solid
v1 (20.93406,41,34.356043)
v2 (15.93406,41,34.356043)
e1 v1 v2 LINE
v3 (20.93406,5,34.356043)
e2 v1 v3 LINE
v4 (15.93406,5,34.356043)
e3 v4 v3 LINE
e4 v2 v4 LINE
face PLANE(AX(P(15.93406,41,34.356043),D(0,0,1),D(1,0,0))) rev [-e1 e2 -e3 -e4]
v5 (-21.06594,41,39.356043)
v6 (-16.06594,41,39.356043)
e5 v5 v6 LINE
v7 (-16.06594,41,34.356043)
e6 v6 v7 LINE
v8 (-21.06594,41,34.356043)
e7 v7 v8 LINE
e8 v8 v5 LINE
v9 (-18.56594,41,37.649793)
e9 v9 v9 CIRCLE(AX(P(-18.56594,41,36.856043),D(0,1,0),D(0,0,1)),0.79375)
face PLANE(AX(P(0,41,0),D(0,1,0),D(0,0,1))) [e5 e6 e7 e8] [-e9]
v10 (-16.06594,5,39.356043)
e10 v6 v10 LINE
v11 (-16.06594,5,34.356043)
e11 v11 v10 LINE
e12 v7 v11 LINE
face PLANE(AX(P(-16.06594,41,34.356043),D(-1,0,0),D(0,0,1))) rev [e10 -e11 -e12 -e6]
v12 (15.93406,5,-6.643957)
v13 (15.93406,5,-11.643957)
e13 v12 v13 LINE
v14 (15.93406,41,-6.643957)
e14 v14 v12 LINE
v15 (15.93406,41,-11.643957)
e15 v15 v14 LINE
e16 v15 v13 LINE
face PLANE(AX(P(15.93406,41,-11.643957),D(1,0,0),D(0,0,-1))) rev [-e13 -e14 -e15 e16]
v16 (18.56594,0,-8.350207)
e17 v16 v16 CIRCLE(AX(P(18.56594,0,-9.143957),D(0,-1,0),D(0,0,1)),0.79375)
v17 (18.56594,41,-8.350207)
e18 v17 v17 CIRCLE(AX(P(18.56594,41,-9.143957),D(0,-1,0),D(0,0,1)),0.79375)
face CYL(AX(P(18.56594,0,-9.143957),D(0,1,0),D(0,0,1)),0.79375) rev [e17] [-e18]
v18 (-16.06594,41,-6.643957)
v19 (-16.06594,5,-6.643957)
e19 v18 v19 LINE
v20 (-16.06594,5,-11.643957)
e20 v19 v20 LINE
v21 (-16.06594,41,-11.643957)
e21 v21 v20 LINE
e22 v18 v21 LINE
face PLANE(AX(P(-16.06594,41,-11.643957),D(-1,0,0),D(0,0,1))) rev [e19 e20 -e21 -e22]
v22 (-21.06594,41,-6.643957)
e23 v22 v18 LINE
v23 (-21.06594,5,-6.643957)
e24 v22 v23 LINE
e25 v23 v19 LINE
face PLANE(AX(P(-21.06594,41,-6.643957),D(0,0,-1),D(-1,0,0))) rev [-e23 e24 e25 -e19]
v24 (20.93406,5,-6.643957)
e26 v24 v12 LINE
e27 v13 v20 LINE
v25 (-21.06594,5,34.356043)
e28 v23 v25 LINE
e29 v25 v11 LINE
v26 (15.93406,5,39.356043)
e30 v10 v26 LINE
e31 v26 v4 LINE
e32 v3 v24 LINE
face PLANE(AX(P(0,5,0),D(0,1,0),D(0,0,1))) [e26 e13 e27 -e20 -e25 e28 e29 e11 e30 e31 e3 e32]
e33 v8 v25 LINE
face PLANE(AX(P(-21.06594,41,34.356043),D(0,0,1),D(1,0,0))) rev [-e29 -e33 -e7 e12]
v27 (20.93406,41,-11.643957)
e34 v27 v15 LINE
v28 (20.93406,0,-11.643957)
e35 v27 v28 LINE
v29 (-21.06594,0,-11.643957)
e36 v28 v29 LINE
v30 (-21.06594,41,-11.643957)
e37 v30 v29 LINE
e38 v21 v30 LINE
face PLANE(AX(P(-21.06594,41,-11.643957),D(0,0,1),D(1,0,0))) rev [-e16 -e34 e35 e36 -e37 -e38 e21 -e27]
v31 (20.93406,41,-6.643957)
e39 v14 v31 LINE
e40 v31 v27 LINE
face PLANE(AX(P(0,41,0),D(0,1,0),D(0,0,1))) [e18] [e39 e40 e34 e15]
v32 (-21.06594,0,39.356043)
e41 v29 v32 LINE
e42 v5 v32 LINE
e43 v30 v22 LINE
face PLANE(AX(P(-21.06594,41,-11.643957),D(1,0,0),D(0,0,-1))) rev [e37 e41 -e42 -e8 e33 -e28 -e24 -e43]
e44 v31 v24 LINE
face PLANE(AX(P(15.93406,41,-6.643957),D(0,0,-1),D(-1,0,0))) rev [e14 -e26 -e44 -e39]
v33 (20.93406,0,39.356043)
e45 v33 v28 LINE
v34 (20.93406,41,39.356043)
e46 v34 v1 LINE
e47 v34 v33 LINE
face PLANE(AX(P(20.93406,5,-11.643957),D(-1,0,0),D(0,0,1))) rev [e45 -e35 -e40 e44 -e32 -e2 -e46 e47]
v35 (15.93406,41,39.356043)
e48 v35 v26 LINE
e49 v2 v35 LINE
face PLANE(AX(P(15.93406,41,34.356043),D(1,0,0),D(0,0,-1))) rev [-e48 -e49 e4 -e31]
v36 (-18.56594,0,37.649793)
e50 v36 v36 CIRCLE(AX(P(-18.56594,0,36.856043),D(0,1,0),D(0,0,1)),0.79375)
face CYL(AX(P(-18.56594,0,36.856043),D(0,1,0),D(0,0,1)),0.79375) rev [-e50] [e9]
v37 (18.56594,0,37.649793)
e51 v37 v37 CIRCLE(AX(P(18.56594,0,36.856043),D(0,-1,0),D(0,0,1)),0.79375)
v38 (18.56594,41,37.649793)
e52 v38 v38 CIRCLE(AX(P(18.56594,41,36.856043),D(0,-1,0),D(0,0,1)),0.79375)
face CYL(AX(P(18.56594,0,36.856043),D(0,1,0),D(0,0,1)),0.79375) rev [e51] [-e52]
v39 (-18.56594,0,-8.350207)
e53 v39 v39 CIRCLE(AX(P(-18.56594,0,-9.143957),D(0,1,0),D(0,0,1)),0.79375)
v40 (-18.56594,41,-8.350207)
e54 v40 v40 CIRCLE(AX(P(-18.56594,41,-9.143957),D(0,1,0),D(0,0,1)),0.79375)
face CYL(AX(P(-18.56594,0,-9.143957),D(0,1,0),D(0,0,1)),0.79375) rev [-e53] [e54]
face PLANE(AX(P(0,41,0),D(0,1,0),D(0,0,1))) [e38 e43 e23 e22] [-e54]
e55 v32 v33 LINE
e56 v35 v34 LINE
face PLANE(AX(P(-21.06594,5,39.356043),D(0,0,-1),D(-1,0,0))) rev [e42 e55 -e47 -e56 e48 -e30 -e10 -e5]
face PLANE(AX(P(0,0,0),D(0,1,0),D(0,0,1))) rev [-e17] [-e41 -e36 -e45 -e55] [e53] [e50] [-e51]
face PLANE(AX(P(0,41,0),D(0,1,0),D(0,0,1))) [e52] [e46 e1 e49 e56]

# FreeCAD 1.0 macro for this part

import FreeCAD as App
import Part
import Sketcher
Q = App.Units.Quantity

doc = App.newDocument("Part")
body = doc.addObject("PartDesign::Body", "Body")

# Sketch on XZ plane
sketch1 = doc.addObject("Sketcher::SketchObject", "Sketch")
body.addObject(sketch1)
sketch1.AttachmentSupport = (doc.XZ_Plane, [""])
sketch1.MapMode = "FlatFace"
sketch1.addGeometry(Part.LineSegment(App.Vector(-21, -12, 0), App.Vector(-21, -7, 0)), False)
sketch1.addGeometry(Part.LineSegment(App.Vector(-21, -7, 0), App.Vector(-16, -7, 0)), False)
sketch1.addGeometry(Part.LineSegment(App.Vector(-16, -7, 0), App.Vector(-16, -12, 0)), False)
sketch1.addGeometry(Part.LineSegment(App.Vector(-16, -12, 0), App.Vector(-21, -12, 0)), False)
sketch1.addConstraint(Sketcher.Constraint("Coincident", 0, 2, 1, 1))
sketch1.addConstraint(Sketcher.Constraint("Coincident", 1, 2, 2, 1))
sketch1.addConstraint(Sketcher.Constraint("Coincident", 2, 2, 3, 1))
sketch1.addConstraint(Sketcher.Constraint("Coincident", 3, 2, 0, 1))
sketch1.addConstraint(Sketcher.Constraint("Vertical", 0))
sketch1.addConstraint(Sketcher.Constraint("Horizontal", 1))
sketch1.addConstraint(Sketcher.Constraint("Vertical", 2))
sketch1.addConstraint(Sketcher.Constraint("Horizontal", 3))
sketch1.addConstraint(Sketcher.Constraint("Equal", 3, 0))
sketch1.addConstraint(Sketcher.Constraint("DistanceX", 1, 1, 1, 2, Q("5 mm")))
sketch1.addConstraint(Sketcher.Constraint("DistanceX", 0, 2, -1, 1, Q("21.06594 mm")))
sketch1.addConstraint(Sketcher.Constraint("DistanceY", 0, 2, -1, 1, Q("6.643957 mm")))
pad1 = doc.addObject("PartDesign::Pad", "Pad")
body.addObject(pad1)
pad1.Profile = sketch1
pad1.Length = 41
pad1.Reversed = True
body2 = doc.addObject("PartDesign::Body", "Body001")

# Sketch on XZ plane
sketch2 = doc.addObject("Sketcher::SketchObject", "Sketch001")
body2.addObject(sketch2)
sketch2.AttachmentSupport = (doc.getObject("XZ_Plane001"), [""])
sketch2.MapMode = "FlatFace"
sketch2.addGeometry(Part.LineSegment(App.Vector(16, -12, 0), App.Vector(16, -7, 0)), False)
sketch2.addGeometry(Part.LineSegment(App.Vector(16, -7, 0), App.Vector(21, -7, 0)), False)
sketch2.addGeometry(Part.LineSegment(App.Vector(21, -7, 0), App.Vector(21, -12, 0)), False)
sketch2.addGeometry(Part.LineSegment(App.Vector(21, -12, 0), App.Vector(16, -12, 0)), False)
sketch2.addConstraint(Sketcher.Constraint("Coincident", 0, 2, 1, 1))
sketch2.addConstraint(Sketcher.Constraint("Coincident", 1, 2, 2, 1))
sketch2.addConstraint(Sketcher.Constraint("Coincident", 2, 2, 3, 1))
sketch2.addConstraint(Sketcher.Constraint("Coincident", 3, 2, 0, 1))
sketch2.addConstraint(Sketcher.Constraint("Vertical", 0))
sketch2.addConstraint(Sketcher.Constraint("Horizontal", 1))
sketch2.addConstraint(Sketcher.Constraint("Vertical", 2))
sketch2.addConstraint(Sketcher.Constraint("Horizontal", 3))
sketch2.addConstraint(Sketcher.Constraint("Equal", 3, 0))
sketch2.addConstraint(Sketcher.Constraint("DistanceX", 1, 1, 1, 2, Q("5 mm")))
sketch2.addConstraint(Sketcher.Constraint("DistanceX", -1, 1, 0, 2, Q("15.93406 mm")))
sketch2.addConstraint(Sketcher.Constraint("DistanceY", 0, 2, -1, 1, Q("6.643957 mm")))
pad2 = doc.addObject("PartDesign::Pad", "Pad001")
body2.addObject(pad2)
pad2.Profile = sketch2
pad2.Length = 41
pad2.Reversed = True
body3 = doc.addObject("PartDesign::Body", "Body002")

# Sketch on XZ plane
sketch3 = doc.addObject("Sketcher::SketchObject", "Sketch002")
body3.addObject(sketch3)
sketch3.AttachmentSupport = (doc.getObject("XZ_Plane002"), [""])
sketch3.MapMode = "FlatFace"
sketch3.addGeometry(Part.LineSegment(App.Vector(-21, 34, 0), App.Vector(-21, 39, 0)), False)
sketch3.addGeometry(Part.LineSegment(App.Vector(-21, 39, 0), App.Vector(-16, 39, 0)), False)
sketch3.addGeometry(Part.LineSegment(App.Vector(-16, 39, 0), App.Vector(-16, 34, 0)), False)
sketch3.addGeometry(Part.LineSegment(App.Vector(-16, 34, 0), App.Vector(-21, 34, 0)), False)
sketch3.addConstraint(Sketcher.Constraint("Coincident", 0, 2, 1, 1))
sketch3.addConstraint(Sketcher.Constraint("Coincident", 1, 2, 2, 1))
sketch3.addConstraint(Sketcher.Constraint("Coincident", 2, 2, 3, 1))
sketch3.addConstraint(Sketcher.Constraint("Coincident", 3, 2, 0, 1))
sketch3.addConstraint(Sketcher.Constraint("Vertical", 0))
sketch3.addConstraint(Sketcher.Constraint("Horizontal", 1))
sketch3.addConstraint(Sketcher.Constraint("Vertical", 2))
sketch3.addConstraint(Sketcher.Constraint("Horizontal", 3))
sketch3.addConstraint(Sketcher.Constraint("Equal", 3, 0))
sketch3.addConstraint(Sketcher.Constraint("DistanceX", 1, 1, 1, 2, Q("5 mm")))
sketch3.addConstraint(Sketcher.Constraint("DistanceX", 0, 2, -1, 1, Q("21.06594 mm")))
sketch3.addConstraint(Sketcher.Constraint("DistanceY", -1, 1, 0, 2, Q("39.356043 mm")))
pad3 = doc.addObject("PartDesign::Pad", "Pad002")
body3.addObject(pad3)
pad3.Profile = sketch3
pad3.Length = 41
pad3.Reversed = True
body4 = doc.addObject("PartDesign::Body", "Body003")

# Sketch on XZ plane
sketch4 = doc.addObject("Sketcher::SketchObject", "Sketch003")
body4.addObject(sketch4)
sketch4.AttachmentSupport = (doc.getObject("XZ_Plane003"), [""])
sketch4.MapMode = "FlatFace"
sketch4.addGeometry(Part.LineSegment(App.Vector(16, 34, 0), App.Vector(16, 39, 0)), False)
sketch4.addGeometry(Part.LineSegment(App.Vector(16, 39, 0), App.Vector(21, 39, 0)), False)
sketch4.addGeometry(Part.LineSegment(App.Vector(21, 39, 0), App.Vector(21, 34, 0)), False)
sketch4.addGeometry(Part.LineSegment(App.Vector(21, 34, 0), App.Vector(16, 34, 0)), False)
sketch4.addConstraint(Sketcher.Constraint("Coincident", 0, 2, 1, 1))
sketch4.addConstraint(Sketcher.Constraint("Coincident", 1, 2, 2, 1))
sketch4.addConstraint(Sketcher.Constraint("Coincident", 2, 2, 3, 1))
sketch4.addConstraint(Sketcher.Constraint("Coincident", 3, 2, 0, 1))
sketch4.addConstraint(Sketcher.Constraint("Vertical", 0))
sketch4.addConstraint(Sketcher.Constraint("Horizontal", 1))
sketch4.addConstraint(Sketcher.Constraint("Vertical", 2))
sketch4.addConstraint(Sketcher.Constraint("Horizontal", 3))
sketch4.addConstraint(Sketcher.Constraint("Equal", 3, 0))
sketch4.addConstraint(Sketcher.Constraint("DistanceX", 1, 1, 1, 2, Q("5 mm")))
sketch4.addConstraint(Sketcher.Constraint("DistanceX", -1, 1, 0, 2, Q("15.93406 mm")))
sketch4.addConstraint(Sketcher.Constraint("DistanceY", -1, 1, 0, 2, Q("39.356043 mm")))
pad4 = doc.addObject("PartDesign::Pad", "Pad003")
body4.addObject(pad4)
pad4.Profile = sketch4
pad4.Length = 41
pad4.Reversed = True
body.AllowCompound = True
doc.recompute()

boolean = doc.addObject("PartDesign::Boolean", "Boolean")
body.addObject(boolean)
boolean.Type = "Fuse"
boolean.addObjects([body2])
doc.recompute()

boolean2 = doc.addObject("PartDesign::Boolean", "Boolean001")
body.addObject(boolean2)
boolean2.Type = "Fuse"
boolean2.addObjects([body3])
doc.recompute()

boolean3 = doc.addObject("PartDesign::Boolean", "Boolean002")
body.addObject(boolean3)
boolean3.Type = "Fuse"
boolean3.addObjects([body4])

# Sketch on XZ plane
sketch5 = doc.addObject("Sketcher::SketchObject", "Sketch004")
body.addObject(sketch5)
sketch5.AttachmentSupport = (doc.XZ_Plane, [""])
sketch5.MapMode = "FlatFace"
sketch5.addGeometry(Part.LineSegment(App.Vector(-21, -12, 0), App.Vector(-21, 39, 0)), False)
sketch5.addGeometry(Part.LineSegment(App.Vector(-21, 39, 0), App.Vector(21, 39, 0)), False)
sketch5.addGeometry(Part.LineSegment(App.Vector(21, 39, 0), App.Vector(21, -12, 0)), False)
sketch5.addGeometry(Part.LineSegment(App.Vector(21, -12, 0), App.Vector(-21, -12, 0)), False)
sketch5.addConstraint(Sketcher.Constraint("Coincident", 0, 2, 1, 1))
sketch5.addConstraint(Sketcher.Constraint("Coincident", 1, 2, 2, 1))
sketch5.addConstraint(Sketcher.Constraint("Coincident", 2, 2, 3, 1))
sketch5.addConstraint(Sketcher.Constraint("Coincident", 3, 2, 0, 1))
sketch5.addConstraint(Sketcher.Constraint("Vertical", 0))
sketch5.addConstraint(Sketcher.Constraint("Horizontal", 1))
sketch5.addConstraint(Sketcher.Constraint("Vertical", 2))
sketch5.addConstraint(Sketcher.Constraint("Horizontal", 3))
sketch5.addConstraint(Sketcher.Constraint("DistanceX", 1, 1, 1, 2, Q("42 mm")))
sketch5.addConstraint(Sketcher.Constraint("DistanceY", 0, 1, 0, 2, Q("51 mm")))
sketch5.addConstraint(Sketcher.Constraint("DistanceX", 0, 2, -1, 1, Q("21.06594 mm")))
sketch5.addConstraint(Sketcher.Constraint("DistanceY", -1, 1, 0, 2, Q("39.356043 mm")))
pad5 = doc.addObject("PartDesign::Pad", "Pad004")
body.addObject(pad5)
pad5.Profile = sketch5
pad5.Length = 5
pad5.Reversed = True

# Sketch on XZ plane
sketch6 = doc.addObject("Sketcher::SketchObject", "Sketch005")
body.addObject(sketch6)
sketch6.AttachmentSupport = (doc.XZ_Plane, [""])
sketch6.MapMode = "FlatFace"
sketch6.AttachmentOffset = App.Placement(App.Vector(0, 0, -41), App.Rotation())
sketch6.addGeometry(Part.Circle(App.Vector(-18.6, -9.1, 0), App.Vector(0, 0, 1), 0.8), False)
sketch6.addGeometry(Part.Circle(App.Vector(-18.6, 36.9, 0), App.Vector(0, 0, 1), 0.8), False)
sketch6.addConstraint(Sketcher.Constraint("Equal", 0, 1))
sketch6.addConstraint(Sketcher.Constraint("Vertical", 0, 3, 1, 3))
sketch6.addConstraint(Sketcher.Constraint("DistanceY", 0, 3, 1, 3, Q("46 mm")))
sketch6.addConstraint(Sketcher.Constraint("Diameter", 0, Q("1.5875 mm")))
sketch6.addConstraint(Sketcher.Constraint("DistanceX", 0, 3, -1, 1, Q("18.56594 mm")))
sketch6.addConstraint(Sketcher.Constraint("DistanceY", 0, 3, -1, 1, Q("9.143957 mm")))
pocket1 = doc.addObject("PartDesign::Pocket", "Pocket")
body.addObject(pocket1)
pocket1.Profile = sketch6
pocket1.Length = 41
pocket1.Reversed = True
doc.recompute()

mirrored = doc.addObject("PartDesign::Mirrored", "Mirrored")
body.addObject(mirrored)
mirrored.Originals = [pocket1]
mirrored.MirrorPlane = (doc.YZ_Plane, [""])
body.Tip = mirrored

doc.recompute()
